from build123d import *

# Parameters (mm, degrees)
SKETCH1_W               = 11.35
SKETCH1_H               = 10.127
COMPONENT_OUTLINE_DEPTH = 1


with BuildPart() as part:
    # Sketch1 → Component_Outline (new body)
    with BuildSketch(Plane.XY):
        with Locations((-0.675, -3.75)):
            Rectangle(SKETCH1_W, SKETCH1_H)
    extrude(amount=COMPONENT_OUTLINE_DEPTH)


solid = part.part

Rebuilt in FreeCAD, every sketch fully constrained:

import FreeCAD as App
import Part
import Sketcher
from FreeCAD import Vector


def add_polygon(sketch, points):
    """Adds a closed chain of lines whose ends are joined by coincident constraints."""
    first, n = sketch.GeometryCount, len(points)
    for a, b in zip(points, points[1:] + points[:1]):
        sketch.addGeometry(Part.LineSegment(App.Vector(*a, 0), App.Vector(*b, 0)), False)
    for i in range(n):
        sketch.addConstraint(Sketcher.Constraint("Coincident", first + i, 2, first + (i + 1) % n, 1))

doc = App.newDocument("Part")
body = doc.addObject("PartDesign::Body", "Body")

sketch1 = body.newObject("Sketcher::SketchObject", "Sketch")
sketch1.AttachmentSupport = (doc.getObject("XY_Plane"), [""])
sketch1.MapMode = "FlatFace"
add_polygon(sketch1, [(-6, 1), (-6, -9), (5, -9), (5, 1)])
sketch1.addConstraint([
    Sketcher.Constraint("Vertical", 0),
    Sketcher.Constraint("Horizontal", 1),
    Sketcher.Constraint("Vertical", 2),
    Sketcher.Constraint("Horizontal", 3),
    Sketcher.Constraint("DistanceX", -1, 1, 1, 2, 5.0),
    Sketcher.Constraint("DistanceX", 1, 1, 1, 2, 11.35),
    Sketcher.Constraint("DistanceY", 0, 2, 0, 1, 10.127),
    Sketcher.Constraint("DistanceY", 0, 2, -1, 1, 8.8135),
])
pad1 = body.newObject("PartDesign::Pad", "Pad")
pad1.Profile = sketch1
pad1.Length = 1

doc.recompute()
